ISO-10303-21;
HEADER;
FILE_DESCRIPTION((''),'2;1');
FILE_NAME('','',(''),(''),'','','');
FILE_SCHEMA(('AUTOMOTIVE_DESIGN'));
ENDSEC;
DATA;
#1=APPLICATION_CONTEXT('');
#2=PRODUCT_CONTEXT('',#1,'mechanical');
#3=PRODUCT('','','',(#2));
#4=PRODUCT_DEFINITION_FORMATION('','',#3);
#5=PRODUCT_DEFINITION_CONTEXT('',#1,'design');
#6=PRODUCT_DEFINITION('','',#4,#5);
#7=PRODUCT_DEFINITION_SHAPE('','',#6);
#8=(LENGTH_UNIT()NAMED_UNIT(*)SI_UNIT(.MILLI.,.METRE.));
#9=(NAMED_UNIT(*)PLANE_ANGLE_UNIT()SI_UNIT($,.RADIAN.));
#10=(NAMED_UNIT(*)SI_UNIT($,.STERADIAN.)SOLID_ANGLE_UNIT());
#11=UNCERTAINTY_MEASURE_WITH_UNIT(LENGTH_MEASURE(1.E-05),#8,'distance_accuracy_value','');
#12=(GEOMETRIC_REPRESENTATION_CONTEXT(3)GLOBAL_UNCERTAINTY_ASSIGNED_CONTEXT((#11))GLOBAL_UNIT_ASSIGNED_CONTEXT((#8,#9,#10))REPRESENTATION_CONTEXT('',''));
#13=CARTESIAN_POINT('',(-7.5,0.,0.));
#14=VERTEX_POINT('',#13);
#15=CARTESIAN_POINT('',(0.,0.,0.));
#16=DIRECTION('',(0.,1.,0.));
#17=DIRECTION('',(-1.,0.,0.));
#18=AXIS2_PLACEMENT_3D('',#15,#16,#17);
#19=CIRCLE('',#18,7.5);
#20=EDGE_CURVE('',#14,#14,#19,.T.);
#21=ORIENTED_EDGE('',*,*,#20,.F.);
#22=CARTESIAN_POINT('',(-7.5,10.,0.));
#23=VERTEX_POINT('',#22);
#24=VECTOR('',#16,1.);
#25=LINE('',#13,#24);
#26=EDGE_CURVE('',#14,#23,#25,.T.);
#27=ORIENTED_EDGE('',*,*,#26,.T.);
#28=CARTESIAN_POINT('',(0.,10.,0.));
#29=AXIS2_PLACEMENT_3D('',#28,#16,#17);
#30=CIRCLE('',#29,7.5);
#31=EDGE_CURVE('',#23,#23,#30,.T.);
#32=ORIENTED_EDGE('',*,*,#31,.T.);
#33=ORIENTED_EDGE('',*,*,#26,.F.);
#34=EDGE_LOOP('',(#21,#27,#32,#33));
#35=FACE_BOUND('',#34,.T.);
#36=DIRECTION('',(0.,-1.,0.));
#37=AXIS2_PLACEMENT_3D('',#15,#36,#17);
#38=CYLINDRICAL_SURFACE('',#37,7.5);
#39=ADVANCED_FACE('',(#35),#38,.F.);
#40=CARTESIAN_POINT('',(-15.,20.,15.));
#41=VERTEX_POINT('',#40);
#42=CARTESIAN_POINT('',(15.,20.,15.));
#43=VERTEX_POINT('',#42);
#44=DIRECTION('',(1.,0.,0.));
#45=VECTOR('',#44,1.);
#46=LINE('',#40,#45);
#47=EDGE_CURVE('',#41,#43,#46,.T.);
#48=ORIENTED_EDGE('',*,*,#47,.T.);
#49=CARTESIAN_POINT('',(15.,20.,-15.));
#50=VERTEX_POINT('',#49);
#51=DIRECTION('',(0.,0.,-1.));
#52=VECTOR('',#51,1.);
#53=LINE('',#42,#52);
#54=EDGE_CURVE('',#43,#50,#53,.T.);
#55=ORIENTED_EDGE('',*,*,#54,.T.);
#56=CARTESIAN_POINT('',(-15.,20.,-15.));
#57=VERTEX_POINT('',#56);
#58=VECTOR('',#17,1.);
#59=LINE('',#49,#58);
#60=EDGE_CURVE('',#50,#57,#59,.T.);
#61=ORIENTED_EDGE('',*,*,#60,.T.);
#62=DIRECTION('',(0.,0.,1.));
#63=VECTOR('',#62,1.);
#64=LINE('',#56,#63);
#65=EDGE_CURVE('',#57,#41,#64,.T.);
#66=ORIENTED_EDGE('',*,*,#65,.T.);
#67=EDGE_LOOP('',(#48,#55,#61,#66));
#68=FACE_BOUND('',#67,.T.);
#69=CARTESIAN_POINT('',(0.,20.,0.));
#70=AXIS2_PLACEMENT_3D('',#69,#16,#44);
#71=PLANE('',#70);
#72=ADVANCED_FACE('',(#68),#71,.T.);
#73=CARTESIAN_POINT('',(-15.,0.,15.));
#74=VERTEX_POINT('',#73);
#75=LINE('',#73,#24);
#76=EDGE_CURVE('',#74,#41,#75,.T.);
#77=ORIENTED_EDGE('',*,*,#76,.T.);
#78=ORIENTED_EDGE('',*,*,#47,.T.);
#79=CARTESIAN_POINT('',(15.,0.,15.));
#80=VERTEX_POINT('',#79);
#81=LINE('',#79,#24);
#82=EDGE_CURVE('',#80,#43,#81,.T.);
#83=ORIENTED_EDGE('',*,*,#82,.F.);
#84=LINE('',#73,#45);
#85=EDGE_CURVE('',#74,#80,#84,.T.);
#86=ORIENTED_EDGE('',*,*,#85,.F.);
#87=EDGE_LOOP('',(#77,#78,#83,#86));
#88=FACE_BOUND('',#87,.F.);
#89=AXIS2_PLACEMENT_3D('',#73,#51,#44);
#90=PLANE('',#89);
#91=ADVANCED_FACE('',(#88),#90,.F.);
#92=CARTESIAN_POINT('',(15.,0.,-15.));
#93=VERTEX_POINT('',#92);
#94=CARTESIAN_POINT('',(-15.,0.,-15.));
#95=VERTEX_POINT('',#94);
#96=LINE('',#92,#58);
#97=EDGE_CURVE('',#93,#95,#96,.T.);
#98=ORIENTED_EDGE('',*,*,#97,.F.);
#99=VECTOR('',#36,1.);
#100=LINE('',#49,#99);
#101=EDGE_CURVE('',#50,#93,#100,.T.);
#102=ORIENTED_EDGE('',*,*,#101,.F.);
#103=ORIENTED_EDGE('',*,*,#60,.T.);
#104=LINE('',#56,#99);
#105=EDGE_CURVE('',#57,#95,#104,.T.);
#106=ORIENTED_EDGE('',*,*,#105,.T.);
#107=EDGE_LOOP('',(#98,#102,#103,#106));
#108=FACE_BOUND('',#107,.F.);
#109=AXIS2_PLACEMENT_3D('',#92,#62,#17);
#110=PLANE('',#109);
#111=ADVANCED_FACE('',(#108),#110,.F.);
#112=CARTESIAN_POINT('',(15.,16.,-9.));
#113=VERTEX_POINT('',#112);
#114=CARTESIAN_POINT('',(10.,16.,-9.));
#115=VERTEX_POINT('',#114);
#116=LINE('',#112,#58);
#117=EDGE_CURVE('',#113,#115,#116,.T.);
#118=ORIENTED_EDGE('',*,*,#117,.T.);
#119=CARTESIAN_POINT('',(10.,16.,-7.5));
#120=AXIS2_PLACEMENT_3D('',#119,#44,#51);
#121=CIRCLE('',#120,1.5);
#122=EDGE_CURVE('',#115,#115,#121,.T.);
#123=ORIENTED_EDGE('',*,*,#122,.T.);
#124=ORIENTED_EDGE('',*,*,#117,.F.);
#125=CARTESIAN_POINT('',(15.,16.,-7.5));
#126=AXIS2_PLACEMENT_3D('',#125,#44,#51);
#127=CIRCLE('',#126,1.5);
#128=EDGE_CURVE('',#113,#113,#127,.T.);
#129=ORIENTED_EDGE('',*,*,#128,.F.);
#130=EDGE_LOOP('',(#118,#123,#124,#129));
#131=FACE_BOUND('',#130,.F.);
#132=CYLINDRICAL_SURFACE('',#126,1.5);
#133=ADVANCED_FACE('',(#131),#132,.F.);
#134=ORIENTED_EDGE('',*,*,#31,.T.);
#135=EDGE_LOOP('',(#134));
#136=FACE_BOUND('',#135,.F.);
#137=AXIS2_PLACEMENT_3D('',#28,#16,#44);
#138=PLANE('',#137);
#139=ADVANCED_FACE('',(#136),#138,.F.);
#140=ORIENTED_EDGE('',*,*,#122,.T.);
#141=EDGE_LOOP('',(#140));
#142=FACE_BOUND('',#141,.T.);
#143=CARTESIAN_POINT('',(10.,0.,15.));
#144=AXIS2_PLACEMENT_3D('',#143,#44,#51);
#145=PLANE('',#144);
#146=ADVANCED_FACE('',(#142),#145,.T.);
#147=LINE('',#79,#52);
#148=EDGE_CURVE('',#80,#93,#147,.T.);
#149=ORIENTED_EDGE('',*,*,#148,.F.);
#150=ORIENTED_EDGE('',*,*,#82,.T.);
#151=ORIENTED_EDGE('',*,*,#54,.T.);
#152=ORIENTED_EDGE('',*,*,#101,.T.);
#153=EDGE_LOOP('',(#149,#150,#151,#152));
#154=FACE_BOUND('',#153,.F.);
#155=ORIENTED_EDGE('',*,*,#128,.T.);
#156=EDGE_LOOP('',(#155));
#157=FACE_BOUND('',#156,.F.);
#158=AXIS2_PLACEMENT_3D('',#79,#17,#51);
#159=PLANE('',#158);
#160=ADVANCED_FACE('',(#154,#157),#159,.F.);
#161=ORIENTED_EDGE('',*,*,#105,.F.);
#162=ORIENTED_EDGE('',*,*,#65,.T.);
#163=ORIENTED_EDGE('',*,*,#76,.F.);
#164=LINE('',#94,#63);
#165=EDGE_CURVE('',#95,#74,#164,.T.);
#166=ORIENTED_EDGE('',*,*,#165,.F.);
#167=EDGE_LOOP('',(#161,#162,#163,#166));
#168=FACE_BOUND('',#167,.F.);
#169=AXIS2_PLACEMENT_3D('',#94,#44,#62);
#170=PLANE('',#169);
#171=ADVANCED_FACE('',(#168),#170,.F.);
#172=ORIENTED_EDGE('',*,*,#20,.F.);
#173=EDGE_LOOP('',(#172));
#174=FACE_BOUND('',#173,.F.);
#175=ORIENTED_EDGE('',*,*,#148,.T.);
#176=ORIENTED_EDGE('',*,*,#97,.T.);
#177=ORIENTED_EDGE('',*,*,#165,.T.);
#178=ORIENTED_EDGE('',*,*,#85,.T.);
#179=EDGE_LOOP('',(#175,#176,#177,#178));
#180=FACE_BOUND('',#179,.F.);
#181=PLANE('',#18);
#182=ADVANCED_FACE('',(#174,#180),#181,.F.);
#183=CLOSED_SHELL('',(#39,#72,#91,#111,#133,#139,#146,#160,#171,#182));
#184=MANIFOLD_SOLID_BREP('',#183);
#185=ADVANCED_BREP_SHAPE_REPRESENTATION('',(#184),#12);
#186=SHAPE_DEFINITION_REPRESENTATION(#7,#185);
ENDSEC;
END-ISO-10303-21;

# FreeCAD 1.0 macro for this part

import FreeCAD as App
import Part
import Sketcher
Q = App.Units.Quantity


def add_polygon(sketch, points):
    """Adds a closed chain of lines whose ends are joined by coincident constraints."""
    first, n = sketch.GeometryCount, len(points)
    for a, b in zip(points, points[1:] + points[:1]):
        sketch.addGeometry(Part.LineSegment(App.Vector(*a, 0), App.Vector(*b, 0)), False)
    for i in range(n):
        sketch.addConstraint(Sketcher.Constraint("Coincident", first + i, 2, first + (i + 1) % n, 1))

doc = App.newDocument("Part")
body = doc.addObject("PartDesign::Body", "Body")

sketch1 = doc.addObject("Sketcher::SketchObject", "Sketch")
body.addObject(sketch1)
sketch1.AttachmentSupport = (doc.XZ_Plane, [""])
sketch1.MapMode = "FlatFace"
add_polygon(sketch1, [(-15, -15), (-15, 15), (15, 15), (15, -15)])
sketch1.addGeometry(Part.Circle(App.Vector(0, 0, 0), App.Vector(0, 0, 1), 8), False)
sketch1.addConstraint([
    Sketcher.Constraint("Vertical", 0),
    Sketcher.Constraint("Horizontal", 1),
    Sketcher.Constraint("Vertical", 2),
    Sketcher.Constraint("Horizontal", 3),
    Sketcher.Constraint("Coincident", 4, 3, -1, 1),
    Sketcher.Constraint("Symmetric", 0, 2, 2, 2, -1, 1),
    Sketcher.Constraint("Equal", 3, 0),
    Sketcher.Constraint("Diameter", 4, Q("15 mm")),
    Sketcher.Constraint("DistanceX", 1, 1, 1, 2, Q("30 mm")),
])
pad1 = doc.addObject("PartDesign::Pad", "Pad")
body.addObject(pad1)
pad1.Profile = sketch1
pad1.Length = 10
pad1.Reversed = True

sketch2 = doc.addObject("Sketcher::SketchObject", "Sketch001")
body.addObject(sketch2)
sketch2.AttachmentSupport = (doc.XZ_Plane, [""])
sketch2.MapMode = "FlatFace"
sketch2.AttachmentOffset = App.Placement(App.Vector(0, 0, -10), App.Rotation())
add_polygon(sketch2, [(-15, -15), (-15, 15), (15, 15), (15, -15)])
sketch2.addConstraint([
    Sketcher.Constraint("Vertical", 0),
    Sketcher.Constraint("Horizontal", 1),
    Sketcher.Constraint("Vertical", 2),
    Sketcher.Constraint("Horizontal", 3),
    Sketcher.Constraint("Symmetric", 0, 2, 2, 2, -1, 1),
    Sketcher.Constraint("Equal", 3, 0),
    Sketcher.Constraint("DistanceX", 1, 1, 1, 2, Q("30 mm")),
])
pad2 = doc.addObject("PartDesign::Pad", "Pad001")
body.addObject(pad2)
pad2.Profile = sketch2
pad2.Length = 10
pad2.Reversed = True

sketch3 = doc.addObject("Sketcher::SketchObject", "Sketch002")
body.addObject(sketch3)
sketch3.AttachmentSupport = (doc.YZ_Plane, [""])
sketch3.MapMode = "FlatFace"
sketch3.AttachmentOffset = App.Placement(App.Vector(0, 0, 15), App.Rotation())
sketch3.addGeometry(Part.Circle(App.Vector(16, -7.5, 0), App.Vector(0, 0, 1), 1.5), False)
sketch3.addConstraint([
    Sketcher.Constraint("Diameter", 0, Q("3 mm")),
    Sketcher.Constraint("DistanceX", -1, 1, 0, 3, Q("16 mm")),
    Sketcher.Constraint("DistanceY", 0, 3, -1, 1, Q("7.5 mm")),
])
pocket1 = doc.addObject("PartDesign::Pocket", "Pocket")
body.addObject(pocket1)
pocket1.Profile = sketch3
pocket1.Length = 5

doc.recompute()
